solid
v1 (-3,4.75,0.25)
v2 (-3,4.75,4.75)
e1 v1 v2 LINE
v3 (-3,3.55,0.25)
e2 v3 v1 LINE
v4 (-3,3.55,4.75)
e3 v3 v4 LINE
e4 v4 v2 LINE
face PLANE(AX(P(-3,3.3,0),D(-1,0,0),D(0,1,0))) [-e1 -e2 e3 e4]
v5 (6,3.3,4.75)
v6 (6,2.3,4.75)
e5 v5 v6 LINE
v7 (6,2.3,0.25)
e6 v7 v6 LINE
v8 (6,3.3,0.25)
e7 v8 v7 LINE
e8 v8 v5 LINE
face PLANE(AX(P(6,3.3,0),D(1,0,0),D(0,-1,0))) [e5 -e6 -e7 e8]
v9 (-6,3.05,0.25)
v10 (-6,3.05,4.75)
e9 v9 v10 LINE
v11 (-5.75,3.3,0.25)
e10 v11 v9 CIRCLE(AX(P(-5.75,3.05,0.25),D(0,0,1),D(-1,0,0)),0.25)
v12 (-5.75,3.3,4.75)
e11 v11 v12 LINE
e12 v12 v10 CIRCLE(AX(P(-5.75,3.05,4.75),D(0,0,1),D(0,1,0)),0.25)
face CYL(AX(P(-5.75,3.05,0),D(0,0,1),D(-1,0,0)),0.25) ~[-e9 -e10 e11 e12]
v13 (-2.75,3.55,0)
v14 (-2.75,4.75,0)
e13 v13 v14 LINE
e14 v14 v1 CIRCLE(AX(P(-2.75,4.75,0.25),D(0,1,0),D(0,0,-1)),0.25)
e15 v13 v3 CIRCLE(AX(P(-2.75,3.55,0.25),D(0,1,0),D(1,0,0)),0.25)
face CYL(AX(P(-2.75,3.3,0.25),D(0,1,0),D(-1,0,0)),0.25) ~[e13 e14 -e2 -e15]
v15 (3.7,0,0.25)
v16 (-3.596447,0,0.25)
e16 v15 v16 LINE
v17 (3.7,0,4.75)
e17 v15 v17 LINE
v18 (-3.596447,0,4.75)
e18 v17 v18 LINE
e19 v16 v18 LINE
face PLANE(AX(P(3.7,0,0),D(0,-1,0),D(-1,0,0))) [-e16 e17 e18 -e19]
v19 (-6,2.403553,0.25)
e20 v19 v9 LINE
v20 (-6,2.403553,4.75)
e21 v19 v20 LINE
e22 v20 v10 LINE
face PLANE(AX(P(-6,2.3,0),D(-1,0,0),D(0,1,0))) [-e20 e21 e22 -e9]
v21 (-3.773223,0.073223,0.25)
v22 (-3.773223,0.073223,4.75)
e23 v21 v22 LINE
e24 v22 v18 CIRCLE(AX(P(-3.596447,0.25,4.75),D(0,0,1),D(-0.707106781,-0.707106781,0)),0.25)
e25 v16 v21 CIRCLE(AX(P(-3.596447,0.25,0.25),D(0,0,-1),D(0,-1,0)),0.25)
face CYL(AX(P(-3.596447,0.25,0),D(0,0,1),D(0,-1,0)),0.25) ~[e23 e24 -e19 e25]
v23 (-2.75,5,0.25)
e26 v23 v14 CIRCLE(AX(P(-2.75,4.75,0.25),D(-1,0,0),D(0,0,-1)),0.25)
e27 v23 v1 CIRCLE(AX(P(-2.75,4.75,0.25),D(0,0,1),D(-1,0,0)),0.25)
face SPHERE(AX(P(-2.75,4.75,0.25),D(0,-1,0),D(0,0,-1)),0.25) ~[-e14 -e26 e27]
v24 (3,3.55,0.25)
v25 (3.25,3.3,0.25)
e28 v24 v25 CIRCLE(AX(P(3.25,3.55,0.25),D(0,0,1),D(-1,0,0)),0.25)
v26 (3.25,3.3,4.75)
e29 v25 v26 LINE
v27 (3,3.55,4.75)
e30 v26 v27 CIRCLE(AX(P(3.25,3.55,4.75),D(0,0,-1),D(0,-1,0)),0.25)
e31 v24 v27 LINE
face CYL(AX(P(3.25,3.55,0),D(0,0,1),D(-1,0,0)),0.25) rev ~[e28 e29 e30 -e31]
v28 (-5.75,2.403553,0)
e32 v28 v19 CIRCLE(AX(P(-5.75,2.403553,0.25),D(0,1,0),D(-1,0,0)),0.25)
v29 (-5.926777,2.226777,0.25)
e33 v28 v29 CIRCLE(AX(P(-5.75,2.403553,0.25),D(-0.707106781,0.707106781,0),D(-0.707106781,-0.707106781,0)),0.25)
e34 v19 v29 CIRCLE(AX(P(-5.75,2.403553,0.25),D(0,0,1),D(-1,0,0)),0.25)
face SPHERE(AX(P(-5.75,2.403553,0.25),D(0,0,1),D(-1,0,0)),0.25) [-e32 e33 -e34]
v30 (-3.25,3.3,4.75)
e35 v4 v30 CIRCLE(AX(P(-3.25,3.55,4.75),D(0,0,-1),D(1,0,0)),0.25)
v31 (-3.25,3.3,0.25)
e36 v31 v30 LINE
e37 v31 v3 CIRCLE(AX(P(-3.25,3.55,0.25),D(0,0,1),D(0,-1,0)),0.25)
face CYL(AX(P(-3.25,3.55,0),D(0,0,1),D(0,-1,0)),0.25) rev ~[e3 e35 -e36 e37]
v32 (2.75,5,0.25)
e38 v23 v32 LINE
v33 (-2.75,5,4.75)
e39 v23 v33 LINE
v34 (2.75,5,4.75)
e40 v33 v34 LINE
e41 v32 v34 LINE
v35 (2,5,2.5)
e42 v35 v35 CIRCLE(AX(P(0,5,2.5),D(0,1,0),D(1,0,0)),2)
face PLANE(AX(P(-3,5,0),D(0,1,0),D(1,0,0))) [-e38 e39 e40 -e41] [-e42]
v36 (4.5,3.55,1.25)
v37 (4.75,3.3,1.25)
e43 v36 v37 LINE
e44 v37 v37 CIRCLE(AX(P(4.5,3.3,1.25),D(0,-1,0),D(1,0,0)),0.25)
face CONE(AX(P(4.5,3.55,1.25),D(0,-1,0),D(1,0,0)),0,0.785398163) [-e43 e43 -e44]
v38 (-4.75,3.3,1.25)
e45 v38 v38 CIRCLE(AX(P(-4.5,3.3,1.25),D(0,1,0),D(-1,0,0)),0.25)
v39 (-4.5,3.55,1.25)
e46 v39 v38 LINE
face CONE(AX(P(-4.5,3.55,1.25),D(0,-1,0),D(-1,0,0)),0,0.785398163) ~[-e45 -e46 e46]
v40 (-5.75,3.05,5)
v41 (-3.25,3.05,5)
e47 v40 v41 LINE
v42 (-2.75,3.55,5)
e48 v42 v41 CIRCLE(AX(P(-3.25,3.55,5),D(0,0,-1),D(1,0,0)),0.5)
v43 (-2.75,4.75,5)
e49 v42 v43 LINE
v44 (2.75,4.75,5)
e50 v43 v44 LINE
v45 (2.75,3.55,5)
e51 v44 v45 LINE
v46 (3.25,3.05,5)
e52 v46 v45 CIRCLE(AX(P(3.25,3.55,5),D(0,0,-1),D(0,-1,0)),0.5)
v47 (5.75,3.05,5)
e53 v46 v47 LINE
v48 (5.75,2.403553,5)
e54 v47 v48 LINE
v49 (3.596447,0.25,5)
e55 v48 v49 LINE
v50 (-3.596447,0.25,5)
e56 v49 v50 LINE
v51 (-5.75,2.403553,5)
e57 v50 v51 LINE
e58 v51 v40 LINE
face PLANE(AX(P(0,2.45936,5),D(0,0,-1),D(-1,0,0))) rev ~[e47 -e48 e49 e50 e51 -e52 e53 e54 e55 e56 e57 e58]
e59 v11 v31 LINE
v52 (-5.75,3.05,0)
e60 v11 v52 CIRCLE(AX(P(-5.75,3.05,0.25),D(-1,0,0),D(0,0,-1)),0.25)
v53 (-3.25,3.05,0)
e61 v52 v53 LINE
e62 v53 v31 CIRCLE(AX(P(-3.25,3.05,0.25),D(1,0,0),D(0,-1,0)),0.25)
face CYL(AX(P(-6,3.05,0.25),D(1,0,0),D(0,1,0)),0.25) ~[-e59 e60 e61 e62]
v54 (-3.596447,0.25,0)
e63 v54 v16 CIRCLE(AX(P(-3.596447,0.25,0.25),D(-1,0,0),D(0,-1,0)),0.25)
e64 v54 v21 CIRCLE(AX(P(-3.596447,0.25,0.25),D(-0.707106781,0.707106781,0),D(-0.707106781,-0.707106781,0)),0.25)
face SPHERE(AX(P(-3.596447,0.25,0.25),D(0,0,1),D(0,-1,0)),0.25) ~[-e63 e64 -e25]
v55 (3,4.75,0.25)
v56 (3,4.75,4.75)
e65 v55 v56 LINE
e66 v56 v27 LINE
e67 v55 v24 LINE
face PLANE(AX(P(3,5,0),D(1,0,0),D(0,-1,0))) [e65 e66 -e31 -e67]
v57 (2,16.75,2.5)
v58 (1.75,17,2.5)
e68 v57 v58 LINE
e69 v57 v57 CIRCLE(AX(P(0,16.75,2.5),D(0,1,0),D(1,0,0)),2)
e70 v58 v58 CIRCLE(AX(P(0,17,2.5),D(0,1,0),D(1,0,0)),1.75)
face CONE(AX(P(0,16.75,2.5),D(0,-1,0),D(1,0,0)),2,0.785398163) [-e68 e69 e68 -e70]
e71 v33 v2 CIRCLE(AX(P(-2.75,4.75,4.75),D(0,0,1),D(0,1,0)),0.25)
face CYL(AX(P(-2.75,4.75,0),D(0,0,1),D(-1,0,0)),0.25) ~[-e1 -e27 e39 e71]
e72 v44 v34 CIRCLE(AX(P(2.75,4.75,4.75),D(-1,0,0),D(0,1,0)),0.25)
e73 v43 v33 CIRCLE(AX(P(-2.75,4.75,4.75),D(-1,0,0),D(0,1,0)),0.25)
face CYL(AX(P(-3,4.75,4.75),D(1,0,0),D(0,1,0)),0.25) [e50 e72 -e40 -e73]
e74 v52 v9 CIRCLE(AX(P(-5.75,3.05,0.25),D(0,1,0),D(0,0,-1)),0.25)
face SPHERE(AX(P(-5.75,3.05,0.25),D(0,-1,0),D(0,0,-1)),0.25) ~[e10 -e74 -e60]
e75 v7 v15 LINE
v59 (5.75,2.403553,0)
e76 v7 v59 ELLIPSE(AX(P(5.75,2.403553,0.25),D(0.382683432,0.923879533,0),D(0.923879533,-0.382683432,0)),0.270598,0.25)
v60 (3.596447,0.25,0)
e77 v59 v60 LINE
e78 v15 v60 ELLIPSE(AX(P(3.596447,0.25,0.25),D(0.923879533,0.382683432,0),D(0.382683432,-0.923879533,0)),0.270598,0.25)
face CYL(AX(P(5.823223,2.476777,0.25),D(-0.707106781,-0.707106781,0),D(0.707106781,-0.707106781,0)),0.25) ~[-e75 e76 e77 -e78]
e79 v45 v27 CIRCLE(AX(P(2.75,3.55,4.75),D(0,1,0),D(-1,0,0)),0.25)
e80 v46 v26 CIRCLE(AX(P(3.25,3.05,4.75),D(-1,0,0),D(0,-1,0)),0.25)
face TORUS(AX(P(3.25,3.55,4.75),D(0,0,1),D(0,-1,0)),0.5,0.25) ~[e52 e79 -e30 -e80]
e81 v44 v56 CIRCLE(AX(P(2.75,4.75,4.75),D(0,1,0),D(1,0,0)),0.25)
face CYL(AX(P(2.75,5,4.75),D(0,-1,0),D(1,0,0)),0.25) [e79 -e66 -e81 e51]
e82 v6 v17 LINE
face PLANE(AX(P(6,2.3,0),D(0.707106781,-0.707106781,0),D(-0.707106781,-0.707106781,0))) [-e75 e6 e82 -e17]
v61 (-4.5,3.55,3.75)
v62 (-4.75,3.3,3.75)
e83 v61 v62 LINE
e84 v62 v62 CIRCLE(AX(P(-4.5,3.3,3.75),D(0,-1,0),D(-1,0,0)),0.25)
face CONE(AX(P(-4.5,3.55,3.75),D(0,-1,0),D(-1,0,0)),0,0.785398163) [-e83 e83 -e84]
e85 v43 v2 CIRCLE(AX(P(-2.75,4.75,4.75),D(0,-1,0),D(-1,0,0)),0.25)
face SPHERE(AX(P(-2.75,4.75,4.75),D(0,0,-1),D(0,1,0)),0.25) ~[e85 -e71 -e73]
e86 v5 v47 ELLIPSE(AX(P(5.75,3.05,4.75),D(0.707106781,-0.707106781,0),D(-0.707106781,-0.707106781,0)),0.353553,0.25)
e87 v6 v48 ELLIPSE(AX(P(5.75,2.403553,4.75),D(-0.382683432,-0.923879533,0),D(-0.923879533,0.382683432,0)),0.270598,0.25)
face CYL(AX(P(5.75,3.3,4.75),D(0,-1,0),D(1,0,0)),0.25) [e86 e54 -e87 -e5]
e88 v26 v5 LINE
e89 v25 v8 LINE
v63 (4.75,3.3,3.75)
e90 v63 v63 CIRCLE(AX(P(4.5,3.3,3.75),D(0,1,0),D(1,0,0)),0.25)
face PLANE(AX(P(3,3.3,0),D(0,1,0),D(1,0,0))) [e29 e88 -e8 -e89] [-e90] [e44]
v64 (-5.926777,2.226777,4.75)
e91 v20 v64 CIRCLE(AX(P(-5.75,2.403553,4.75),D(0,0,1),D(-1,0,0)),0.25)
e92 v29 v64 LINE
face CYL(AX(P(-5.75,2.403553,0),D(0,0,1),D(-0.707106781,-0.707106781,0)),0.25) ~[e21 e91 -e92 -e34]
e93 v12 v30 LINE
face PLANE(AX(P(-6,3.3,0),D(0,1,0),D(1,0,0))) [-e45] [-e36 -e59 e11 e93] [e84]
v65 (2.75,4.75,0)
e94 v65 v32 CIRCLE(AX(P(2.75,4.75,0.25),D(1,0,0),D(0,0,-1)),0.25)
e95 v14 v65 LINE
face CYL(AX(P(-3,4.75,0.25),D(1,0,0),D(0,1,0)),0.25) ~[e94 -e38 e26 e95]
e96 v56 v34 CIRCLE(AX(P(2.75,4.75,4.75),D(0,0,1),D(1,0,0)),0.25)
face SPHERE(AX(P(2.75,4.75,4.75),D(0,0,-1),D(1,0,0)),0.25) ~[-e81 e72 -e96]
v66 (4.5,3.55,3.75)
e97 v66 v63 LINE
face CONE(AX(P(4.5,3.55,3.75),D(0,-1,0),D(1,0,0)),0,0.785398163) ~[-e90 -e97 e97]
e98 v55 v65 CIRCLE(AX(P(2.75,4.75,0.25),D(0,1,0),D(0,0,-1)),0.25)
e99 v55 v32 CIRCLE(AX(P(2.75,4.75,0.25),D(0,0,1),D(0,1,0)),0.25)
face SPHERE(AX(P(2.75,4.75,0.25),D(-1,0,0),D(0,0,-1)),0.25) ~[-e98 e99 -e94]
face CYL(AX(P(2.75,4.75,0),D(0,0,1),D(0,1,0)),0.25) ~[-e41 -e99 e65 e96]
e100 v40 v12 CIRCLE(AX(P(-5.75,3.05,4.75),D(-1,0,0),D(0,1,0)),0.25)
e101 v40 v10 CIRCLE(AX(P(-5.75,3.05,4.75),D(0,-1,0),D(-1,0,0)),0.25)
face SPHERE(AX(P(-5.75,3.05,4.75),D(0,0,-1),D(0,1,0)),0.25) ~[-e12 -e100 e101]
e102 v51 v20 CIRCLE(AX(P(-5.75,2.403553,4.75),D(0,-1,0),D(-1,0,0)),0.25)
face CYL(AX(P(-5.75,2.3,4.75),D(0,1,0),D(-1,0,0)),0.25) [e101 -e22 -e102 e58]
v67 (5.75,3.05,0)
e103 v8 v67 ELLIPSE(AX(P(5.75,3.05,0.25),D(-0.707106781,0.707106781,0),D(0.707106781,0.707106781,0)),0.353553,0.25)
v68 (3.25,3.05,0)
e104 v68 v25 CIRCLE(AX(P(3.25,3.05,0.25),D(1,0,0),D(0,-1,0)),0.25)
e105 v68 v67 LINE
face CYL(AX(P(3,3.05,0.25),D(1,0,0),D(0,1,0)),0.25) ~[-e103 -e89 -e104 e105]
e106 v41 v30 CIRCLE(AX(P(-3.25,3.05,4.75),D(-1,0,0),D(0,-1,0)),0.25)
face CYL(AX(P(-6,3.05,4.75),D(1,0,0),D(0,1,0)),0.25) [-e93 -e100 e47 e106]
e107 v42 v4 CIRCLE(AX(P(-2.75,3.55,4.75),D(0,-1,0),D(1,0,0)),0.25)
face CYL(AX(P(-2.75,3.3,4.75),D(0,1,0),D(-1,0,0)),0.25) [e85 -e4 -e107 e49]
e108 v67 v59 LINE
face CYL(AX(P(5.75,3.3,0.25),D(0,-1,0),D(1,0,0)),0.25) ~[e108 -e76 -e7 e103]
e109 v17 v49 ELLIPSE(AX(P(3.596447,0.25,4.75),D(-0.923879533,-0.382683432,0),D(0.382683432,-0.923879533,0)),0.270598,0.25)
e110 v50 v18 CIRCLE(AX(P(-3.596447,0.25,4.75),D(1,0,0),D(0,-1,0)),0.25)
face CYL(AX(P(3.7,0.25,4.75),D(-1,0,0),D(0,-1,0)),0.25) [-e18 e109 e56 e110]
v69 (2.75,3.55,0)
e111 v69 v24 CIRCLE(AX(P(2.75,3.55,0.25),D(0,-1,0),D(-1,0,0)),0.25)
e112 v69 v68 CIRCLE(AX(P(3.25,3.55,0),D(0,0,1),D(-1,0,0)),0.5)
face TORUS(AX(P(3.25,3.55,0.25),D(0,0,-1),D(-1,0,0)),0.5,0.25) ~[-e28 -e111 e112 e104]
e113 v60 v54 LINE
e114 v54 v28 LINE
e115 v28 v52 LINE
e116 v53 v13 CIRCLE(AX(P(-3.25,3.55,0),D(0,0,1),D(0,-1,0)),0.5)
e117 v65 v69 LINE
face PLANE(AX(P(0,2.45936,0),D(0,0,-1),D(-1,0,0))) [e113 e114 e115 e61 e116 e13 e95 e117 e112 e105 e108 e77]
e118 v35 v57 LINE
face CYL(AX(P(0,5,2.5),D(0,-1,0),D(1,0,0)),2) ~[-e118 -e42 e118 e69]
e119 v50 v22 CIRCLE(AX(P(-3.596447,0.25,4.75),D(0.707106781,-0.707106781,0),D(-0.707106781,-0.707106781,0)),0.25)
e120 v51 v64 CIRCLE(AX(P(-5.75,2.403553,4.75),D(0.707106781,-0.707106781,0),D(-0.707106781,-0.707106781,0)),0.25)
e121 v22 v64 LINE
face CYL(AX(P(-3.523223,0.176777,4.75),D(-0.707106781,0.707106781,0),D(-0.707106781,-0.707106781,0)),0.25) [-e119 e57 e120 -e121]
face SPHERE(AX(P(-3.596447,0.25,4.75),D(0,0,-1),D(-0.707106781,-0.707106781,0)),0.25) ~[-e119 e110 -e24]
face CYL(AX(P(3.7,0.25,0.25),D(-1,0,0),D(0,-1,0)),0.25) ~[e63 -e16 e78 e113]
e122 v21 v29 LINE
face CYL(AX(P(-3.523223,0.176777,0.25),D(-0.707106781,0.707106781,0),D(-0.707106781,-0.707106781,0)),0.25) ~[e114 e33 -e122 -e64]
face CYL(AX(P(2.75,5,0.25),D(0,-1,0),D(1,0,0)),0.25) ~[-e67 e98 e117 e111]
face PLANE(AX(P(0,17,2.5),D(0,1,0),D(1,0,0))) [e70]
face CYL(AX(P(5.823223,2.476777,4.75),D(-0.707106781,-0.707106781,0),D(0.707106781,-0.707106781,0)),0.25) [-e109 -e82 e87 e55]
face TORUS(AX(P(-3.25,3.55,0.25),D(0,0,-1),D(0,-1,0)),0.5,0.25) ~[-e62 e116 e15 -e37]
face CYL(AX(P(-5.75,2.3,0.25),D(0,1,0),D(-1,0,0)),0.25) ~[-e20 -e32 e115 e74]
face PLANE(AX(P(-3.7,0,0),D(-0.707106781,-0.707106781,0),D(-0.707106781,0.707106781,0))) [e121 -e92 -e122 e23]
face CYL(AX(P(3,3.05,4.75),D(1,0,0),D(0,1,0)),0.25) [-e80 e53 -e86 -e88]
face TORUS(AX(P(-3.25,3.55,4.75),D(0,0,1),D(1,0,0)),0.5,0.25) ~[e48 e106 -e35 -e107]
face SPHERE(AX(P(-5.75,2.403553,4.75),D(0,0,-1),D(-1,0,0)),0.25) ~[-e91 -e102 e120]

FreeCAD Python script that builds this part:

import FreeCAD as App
import Part
import Sketcher

V = App.Vector


def edges_at(feature, points):
    """Names of the edges that pass closest to the given points."""
    edges = feature.Shape.Edges
    near = lambda p: min(range(len(edges)), key=lambda i: edges[i].distToShape(Part.Vertex(*p))[0])
    return sorted({f"Edge{near(p) + 1}" for p in points})

doc = App.newDocument("Part")
body = doc.addObject("PartDesign::Body", "Body")

# Sketch on XY plane
sketch1 = body.newObject("Sketcher::SketchObject", "Sketch")
sketch1.AttachmentSupport = (doc.getObject("XY_Plane"), [""])
sketch1.MapMode = "FlatFace"
sketch1.addGeometry([
    Part.LineSegment(V(-3.7, 0, 0), V(3.7, 0, 0)),  # 0
    Part.LineSegment(V(3.7, 0, 0), V(6, 2.3, 0)),  # 1
    Part.LineSegment(V(6, 2.3, 0), V(6, 3.3, 0)),  # 2
    Part.LineSegment(V(6, 3.3, 0), V(3, 3.3, 0)),  # 3
    Part.LineSegment(V(3, 3.3, 0), V(3, 5, 0)),  # 4
    Part.LineSegment(V(3, 5, 0), V(-3, 5, 0)),  # 5
    Part.LineSegment(V(-3, 5, 0), V(-3, 3.3, 0)),  # 6
    Part.LineSegment(V(-3, 3.3, 0), V(-6, 3.3, 0)),  # 7
    Part.LineSegment(V(-6, 3.3, 0), V(-6, 2.3, 0)),  # 8
    Part.LineSegment(V(-6, 2.3, 0), V(-3.7, 0, 0)),  # 9
], False)
sketch1.addConstraint([
    Sketcher.Constraint("Coincident", 0, 2, 1, 1),
    Sketcher.Constraint("Coincident", 1, 2, 2, 1),
    Sketcher.Constraint("Coincident", 2, 2, 3, 1),
    Sketcher.Constraint("Coincident", 3, 2, 4, 1),
    Sketcher.Constraint("Coincident", 4, 2, 5, 1),
    Sketcher.Constraint("Coincident", 5, 2, 6, 1),
    Sketcher.Constraint("Coincident", 6, 2, 7, 1),
    Sketcher.Constraint("Coincident", 7, 2, 8, 1),
    Sketcher.Constraint("Coincident", 8, 2, 9, 1),
    Sketcher.Constraint("Coincident", 9, 2, 0, 1),
    Sketcher.Constraint("Horizontal", 0),
    Sketcher.Constraint("Vertical", 2),
    Sketcher.Constraint("Horizontal", 3),
    Sketcher.Constraint("Vertical", 4),
    Sketcher.Constraint("Horizontal", 5),
    Sketcher.Constraint("Vertical", 6),
    Sketcher.Constraint("Horizontal", 7),
    Sketcher.Constraint("Vertical", 8),
    Sketcher.Constraint("Symmetric", 0, 2, 9, 2, -1, 1),
    Sketcher.Constraint("Symmetric", 3, 2, 6, 2, -2),
    Sketcher.Constraint("Symmetric", 1, 2, 8, 2, -2),
    Sketcher.Constraint("Perpendicular", 1, 9),
    Sketcher.Constraint("DistanceX", 3, 2, 3, 1, 3.0),
    Sketcher.Constraint("DistanceX", 5, 2, 5, 1, 6.0),
    Sketcher.Constraint("DistanceY", 2, 1, 2, 2, 1.0),
    Sketcher.Constraint("DistanceX", 0, 1, 0, 2, 7.4),
    Sketcher.Constraint("DistanceY", 4, 1, 4, 2, 1.7),
])
pad1 = body.newObject("PartDesign::Pad", "Pad")
pad1.Profile = sketch1
pad1.Length = 5
doc.recompute()

fillet = body.newObject("PartDesign::Fillet", "Fillet")
fillet.Base = (pad1, edges_at(pad1, [
    (-6, 2.8, 0),
    (-4.5, 3.3, 0),
    (-3, 4.15, 0),
    (0, 5, 0),
    (3, 4.15, 0),
    (4.5, 3.3, 0),
    (6, 2.8, 0),
    (4.85, 1.15, 5),
    (4.85, 1.15, 0),
    (0, 0, 0),
    (-4.85, 1.15, 0),
    (6, 2.8, 5),
    (-6, 2.3, 2.5),
    (-6, 3.3, 2.5),
    (-3, 3.3, 2.5),
    (-3, 5, 2.5),
    (3, 5, 2.5),
    (3, 3.3, 2.5),
    (-3.7, 0, 2.5),
    (4.5, 3.3, 5),
    (3, 4.15, 5),
    (0, 5, 5),
    (-3, 4.15, 5),
    (-4.5, 3.3, 5),
    (-6, 2.8, 5),
    (-4.85, 1.15, 5),
    (0, 0, 5),
]))
fillet.Radius = 0.25

# Sketch on XZ plane
sketch2 = body.newObject("Sketcher::SketchObject", "Sketch001")
sketch2.AttachmentSupport = (doc.getObject("XZ_Plane"), [""])
sketch2.MapMode = "FlatFace"
sketch2.AttachmentOffset = App.Placement(V(0, 0, -5), App.Rotation())
sketch2.addGeometry(Part.Circle(V(0, 2.5, 0), V(0, 0, 1), 2), False)
sketch2.addConstraint([
    Sketcher.Constraint("PointOnObject", 0, 3, -2),
    Sketcher.Constraint("Diameter", 0, 4.0),
    Sketcher.Constraint("DistanceY", -1, 1, 0, 3, 2.5),
])
pad2 = body.newObject("PartDesign::Pad", "Pad001")
pad2.Profile = sketch2
pad2.Length = 12
pad2.Reversed = True
doc.recompute()

chamfer = body.newObject("PartDesign::Chamfer", "Chamfer")
chamfer.Base = (pad2, edges_at(pad2, [(-2, 17, 2.5)]))
chamfer.Size = 0.25

# Sketch on XY plane
sketch3 = body.newObject("Sketcher::SketchObject", "Sketch002")
sketch3.AttachmentSupport = (doc.getObject("XY_Plane"), [""])
sketch3.MapMode = "FlatFace"
sketch3.AttachmentOffset = App.Placement(V(0, 0, 1.25), App.Rotation())
sketch3.addGeometry([
    Part.LineSegment(V(-4.5, 3.3, 0), V(-4.5, 3.55, 0)),
    Part.LineSegment(V(-4.5, 3.55, 0), V(-4.75, 3.3, 0)),
    Part.LineSegment(V(-4.75, 3.3, 0), V(-4.5, 3.3, 0)),
], False)
sketch3.addGeometry(Part.LineSegment(V(-4.5, 3.3, 0), V(-4.5, 3.55, 0)), True)  # axis
sketch3.addConstraint([
    Sketcher.Constraint("Coincident", 0, 2, 1, 1),
    Sketcher.Constraint("Coincident", 1, 2, 2, 1),
    Sketcher.Constraint("Coincident", 2, 2, 0, 1),
    Sketcher.Constraint("Vertical", 0),
    Sketcher.Constraint("Horizontal", 2),
    Sketcher.Constraint("Vertical", 3),
    Sketcher.Constraint("Coincident", 3, 1, 2, 2),
    Sketcher.Constraint("Equal", 2, 0),
    Sketcher.Constraint("Equal", 0, 3),
    Sketcher.Constraint("DistanceX", 2, 1, 2, 2, 0.25),
    Sketcher.Constraint("DistanceX", 0, 2, -1, 1, 4.5),
    Sketcher.Constraint("DistanceY", -1, 1, 1, 2, 3.3),
])
revolution = body.newObject("PartDesign::Revolution", "Revolution")
revolution.Profile = sketch3
revolution.ReferenceAxis = (sketch3, ["Axis0"])
revolution.Angle = 360
doc.recompute()

mirrored = body.newObject("PartDesign::Mirrored", "Mirrored")
mirrored.Originals = [revolution]
mirrored.MirrorPlane = (doc.getObject("YZ_Plane"), [""])
body.Tip = mirrored
doc.recompute()

datumplane = body.newObject("PartDesign::Plane", "DatumPlane")
datumplane.AttachmentSupport = (doc.getObject("XY_Plane"), [""])
datumplane.MapMode = "FlatFace"
datumplane.AttachmentOffset = App.Placement(V(0, 0, 2.5), App.Rotation())
mirrored2 = body.newObject("PartDesign::Mirrored", "Mirrored001")
mirrored2.Originals = [revolution]
mirrored2.MirrorPlane = (datumplane, [""])
body.Tip = mirrored2

# Sketch on XY plane
sketch4 = body.newObject("Sketcher::SketchObject", "Sketch003")
sketch4.AttachmentSupport = (doc.getObject("XY_Plane"), [""])
sketch4.MapMode = "FlatFace"
sketch4.AttachmentOffset = App.Placement(V(0, 0, 3.75), App.Rotation())
sketch4.addGeometry([
    Part.LineSegment(V(4.5, 3.3, 0), V(4.5, 3.55, 0)),
    Part.LineSegment(V(4.5, 3.55, 0), V(4.75, 3.3, 0)),
    Part.LineSegment(V(4.75, 3.3, 0), V(4.5, 3.3, 0)),
], False)
sketch4.addGeometry(Part.LineSegment(V(4.5, 3.3, 0), V(4.5, 3.55, 0)), True)  # axis
sketch4.addConstraint([
    Sketcher.Constraint("Coincident", 0, 2, 1, 1),
    Sketcher.Constraint("Coincident", 1, 2, 2, 1),
    Sketcher.Constraint("Coincident", 2, 2, 0, 1),
    Sketcher.Constraint("Vertical", 0),
    Sketcher.Constraint("Horizontal", 2),
    Sketcher.Constraint("Vertical", 3),
    Sketcher.Constraint("Coincident", 3, 1, 2, 2),
    Sketcher.Constraint("Equal", 2, 0),
    Sketcher.Constraint("Equal", 0, 3),
    Sketcher.Constraint("DistanceX", 2, 2, 2, 1, 0.25),
    Sketcher.Constraint("DistanceX", -1, 1, 0, 2, 4.5),
    Sketcher.Constraint("DistanceY", -1, 1, 1, 2, 3.3),
])
revolution2 = body.newObject("PartDesign::Revolution", "Revolution001")
revolution2.Profile = sketch4
revolution2.ReferenceAxis = (sketch4, ["Axis0"])
revolution2.Angle = 360

doc.recompute()
